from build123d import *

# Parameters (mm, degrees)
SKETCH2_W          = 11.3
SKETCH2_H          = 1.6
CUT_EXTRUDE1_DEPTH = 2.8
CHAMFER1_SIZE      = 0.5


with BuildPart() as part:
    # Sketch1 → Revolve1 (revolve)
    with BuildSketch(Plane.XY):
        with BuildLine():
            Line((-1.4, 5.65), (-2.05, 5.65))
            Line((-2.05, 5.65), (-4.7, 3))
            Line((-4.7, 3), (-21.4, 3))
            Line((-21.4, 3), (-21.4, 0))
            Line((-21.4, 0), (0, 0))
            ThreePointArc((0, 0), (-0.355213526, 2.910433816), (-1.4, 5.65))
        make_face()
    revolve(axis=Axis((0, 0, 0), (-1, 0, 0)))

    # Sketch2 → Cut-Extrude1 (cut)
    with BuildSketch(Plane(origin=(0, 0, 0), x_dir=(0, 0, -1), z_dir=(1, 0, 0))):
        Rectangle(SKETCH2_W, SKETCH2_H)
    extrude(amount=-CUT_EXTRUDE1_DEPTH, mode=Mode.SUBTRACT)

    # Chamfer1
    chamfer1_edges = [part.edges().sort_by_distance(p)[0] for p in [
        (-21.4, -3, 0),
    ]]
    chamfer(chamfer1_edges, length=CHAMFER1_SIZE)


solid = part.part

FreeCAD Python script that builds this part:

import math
import FreeCAD as App
import Part
import Sketcher

V = App.Vector
Q = App.Units.Quantity


def edges_at(feature, points):
    """Names of the edges that pass closest to the given points."""
    edges = feature.Shape.Edges
    near = lambda p: min(range(len(edges)), key=lambda i: edges[i].distToShape(Part.Vertex(*p))[0])
    return sorted({f"Edge{near(p) + 1}" for p in points})

doc = App.newDocument("Part")
body = doc.addObject("PartDesign::Body", "Body")

# Sketch on XY plane
sketch1 = doc.addObject("Sketcher::SketchObject", "Sketch")
body.addObject(sketch1)
sketch1.AttachmentSupport = (doc.XY_Plane, [""])
sketch1.MapMode = "FlatFace"
sketch1.addGeometry(Part.LineSegment(V(-1.4, 5.65, 0), V(-2.05, 5.65, 0)), False)
sketch1.addGeometry(Part.LineSegment(V(-2.05, 5.65, 0), V(-4.7, 3, 0)), False)
sketch1.addGeometry(Part.LineSegment(V(-4.7, 3, 0), V(-21.4, 3, 0)), False)
sketch1.addGeometry(Part.LineSegment(V(-21.4, 3, 0), V(-21.4, 0, 0)), False)
sketch1.addGeometry(Part.LineSegment(V(-21.4, 0, 0), V(0, 0, 0)), False)
sketch1.addGeometry(Part.ArcOfCircle(Part.Circle(V(-12.100893, 0, 0), V(0, 0, 1), 12.100893), math.radians(0), math.radians(27.833755)), False)
sketch1.addConstraint(Sketcher.Constraint("Coincident", 0, 2, 1, 1))
sketch1.addConstraint(Sketcher.Constraint("Coincident", 1, 2, 2, 1))
sketch1.addConstraint(Sketcher.Constraint("Coincident", 2, 2, 3, 1))
sketch1.addConstraint(Sketcher.Constraint("Coincident", 3, 2, 4, 1))
sketch1.addConstraint(Sketcher.Constraint("Coincident", 4, 2, 5, 1))
sketch1.addConstraint(Sketcher.Constraint("Coincident", 5, 2, 0, 1))
sketch1.addConstraint(Sketcher.Constraint("Horizontal", 0))
sketch1.addConstraint(Sketcher.Constraint("Horizontal", 2))
sketch1.addConstraint(Sketcher.Constraint("Vertical", 3))
sketch1.addConstraint(Sketcher.Constraint("Horizontal", 4))
sketch1.addConstraint(Sketcher.Constraint("Coincident", 4, 2, -1, 1))
sketch1.addConstraint(Sketcher.Constraint("PointOnObject", 5, 3, -1))
sketch1.addConstraint(Sketcher.Constraint("DistanceY", 3, 2, 3, 1, Q("3 mm")))
sketch1.addConstraint(Sketcher.Constraint("Angle", 1, Q("-135 deg")))
sketch1.addConstraint(Sketcher.Constraint("DistanceX", 2, 2, 2, 1, Q("16.7 mm")))
sketch1.addConstraint(Sketcher.Constraint("DistanceX", 4, 1, 4, 2, Q("21.4 mm")))
sketch1.addConstraint(Sketcher.Constraint("DistanceX", 2, 2, 5, 2, Q("20 mm")))
sketch1.addConstraint(Sketcher.Constraint("DistanceX", 0, 2, 0, 1, Q("0.65 mm")))
revolution = doc.addObject("PartDesign::Revolution", "Revolution")
body.addObject(revolution)
revolution.Profile = sketch1
revolution.ReferenceAxis = (sketch1, ["H_Axis"])
revolution.Angle = 360

# Sketch on YZ plane
sketch2 = doc.addObject("Sketcher::SketchObject", "Sketch001")
body.addObject(sketch2)
sketch2.AttachmentSupport = (doc.YZ_Plane, [""])
sketch2.MapMode = "FlatFace"
sketch2.addGeometry(Part.LineSegment(V(0.8, 5.65, 0), V(-0.8, 5.65, 0)), False)
sketch2.addGeometry(Part.LineSegment(V(-0.8, 5.65, 0), V(-0.8, -5.65, 0)), False)
sketch2.addGeometry(Part.LineSegment(V(-0.8, -5.65, 0), V(0.8, -5.65, 0)), False)
sketch2.addGeometry(Part.LineSegment(V(0.8, -5.65, 0), V(0.8, 5.65, 0)), False)
sketch2.addConstraint(Sketcher.Constraint("Coincident", 0, 2, 1, 1))
sketch2.addConstraint(Sketcher.Constraint("Coincident", 1, 2, 2, 1))
sketch2.addConstraint(Sketcher.Constraint("Coincident", 2, 2, 3, 1))
sketch2.addConstraint(Sketcher.Constraint("Coincident", 3, 2, 0, 1))
sketch2.addConstraint(Sketcher.Constraint("Horizontal", 0))
sketch2.addConstraint(Sketcher.Constraint("Vertical", 1))
sketch2.addConstraint(Sketcher.Constraint("Horizontal", 2))
sketch2.addConstraint(Sketcher.Constraint("Vertical", 3))
sketch2.addConstraint(Sketcher.Constraint("Symmetric", 0, 2, 2, 2, -1, 1))
sketch2.addConstraint(Sketcher.Constraint("DistanceX", 0, 2, 0, 1, Q("1.6 mm")))
sketch2.addConstraint(Sketcher.Constraint("DistanceY", 1, 2, 1, 1, Q("11.3 mm")))
pocket1 = doc.addObject("PartDesign::Pocket", "Pocket")
body.addObject(pocket1)
pocket1.Profile = sketch2
pocket1.Length = 2.8
doc.recompute()

chamfer = doc.addObject("PartDesign::Chamfer", "Chamfer")
body.addObject(chamfer)
chamfer.Base = (pocket1, edges_at(pocket1, [(-21.4, -3, 0)]))
chamfer.Size = 0.5

doc.recompute()
